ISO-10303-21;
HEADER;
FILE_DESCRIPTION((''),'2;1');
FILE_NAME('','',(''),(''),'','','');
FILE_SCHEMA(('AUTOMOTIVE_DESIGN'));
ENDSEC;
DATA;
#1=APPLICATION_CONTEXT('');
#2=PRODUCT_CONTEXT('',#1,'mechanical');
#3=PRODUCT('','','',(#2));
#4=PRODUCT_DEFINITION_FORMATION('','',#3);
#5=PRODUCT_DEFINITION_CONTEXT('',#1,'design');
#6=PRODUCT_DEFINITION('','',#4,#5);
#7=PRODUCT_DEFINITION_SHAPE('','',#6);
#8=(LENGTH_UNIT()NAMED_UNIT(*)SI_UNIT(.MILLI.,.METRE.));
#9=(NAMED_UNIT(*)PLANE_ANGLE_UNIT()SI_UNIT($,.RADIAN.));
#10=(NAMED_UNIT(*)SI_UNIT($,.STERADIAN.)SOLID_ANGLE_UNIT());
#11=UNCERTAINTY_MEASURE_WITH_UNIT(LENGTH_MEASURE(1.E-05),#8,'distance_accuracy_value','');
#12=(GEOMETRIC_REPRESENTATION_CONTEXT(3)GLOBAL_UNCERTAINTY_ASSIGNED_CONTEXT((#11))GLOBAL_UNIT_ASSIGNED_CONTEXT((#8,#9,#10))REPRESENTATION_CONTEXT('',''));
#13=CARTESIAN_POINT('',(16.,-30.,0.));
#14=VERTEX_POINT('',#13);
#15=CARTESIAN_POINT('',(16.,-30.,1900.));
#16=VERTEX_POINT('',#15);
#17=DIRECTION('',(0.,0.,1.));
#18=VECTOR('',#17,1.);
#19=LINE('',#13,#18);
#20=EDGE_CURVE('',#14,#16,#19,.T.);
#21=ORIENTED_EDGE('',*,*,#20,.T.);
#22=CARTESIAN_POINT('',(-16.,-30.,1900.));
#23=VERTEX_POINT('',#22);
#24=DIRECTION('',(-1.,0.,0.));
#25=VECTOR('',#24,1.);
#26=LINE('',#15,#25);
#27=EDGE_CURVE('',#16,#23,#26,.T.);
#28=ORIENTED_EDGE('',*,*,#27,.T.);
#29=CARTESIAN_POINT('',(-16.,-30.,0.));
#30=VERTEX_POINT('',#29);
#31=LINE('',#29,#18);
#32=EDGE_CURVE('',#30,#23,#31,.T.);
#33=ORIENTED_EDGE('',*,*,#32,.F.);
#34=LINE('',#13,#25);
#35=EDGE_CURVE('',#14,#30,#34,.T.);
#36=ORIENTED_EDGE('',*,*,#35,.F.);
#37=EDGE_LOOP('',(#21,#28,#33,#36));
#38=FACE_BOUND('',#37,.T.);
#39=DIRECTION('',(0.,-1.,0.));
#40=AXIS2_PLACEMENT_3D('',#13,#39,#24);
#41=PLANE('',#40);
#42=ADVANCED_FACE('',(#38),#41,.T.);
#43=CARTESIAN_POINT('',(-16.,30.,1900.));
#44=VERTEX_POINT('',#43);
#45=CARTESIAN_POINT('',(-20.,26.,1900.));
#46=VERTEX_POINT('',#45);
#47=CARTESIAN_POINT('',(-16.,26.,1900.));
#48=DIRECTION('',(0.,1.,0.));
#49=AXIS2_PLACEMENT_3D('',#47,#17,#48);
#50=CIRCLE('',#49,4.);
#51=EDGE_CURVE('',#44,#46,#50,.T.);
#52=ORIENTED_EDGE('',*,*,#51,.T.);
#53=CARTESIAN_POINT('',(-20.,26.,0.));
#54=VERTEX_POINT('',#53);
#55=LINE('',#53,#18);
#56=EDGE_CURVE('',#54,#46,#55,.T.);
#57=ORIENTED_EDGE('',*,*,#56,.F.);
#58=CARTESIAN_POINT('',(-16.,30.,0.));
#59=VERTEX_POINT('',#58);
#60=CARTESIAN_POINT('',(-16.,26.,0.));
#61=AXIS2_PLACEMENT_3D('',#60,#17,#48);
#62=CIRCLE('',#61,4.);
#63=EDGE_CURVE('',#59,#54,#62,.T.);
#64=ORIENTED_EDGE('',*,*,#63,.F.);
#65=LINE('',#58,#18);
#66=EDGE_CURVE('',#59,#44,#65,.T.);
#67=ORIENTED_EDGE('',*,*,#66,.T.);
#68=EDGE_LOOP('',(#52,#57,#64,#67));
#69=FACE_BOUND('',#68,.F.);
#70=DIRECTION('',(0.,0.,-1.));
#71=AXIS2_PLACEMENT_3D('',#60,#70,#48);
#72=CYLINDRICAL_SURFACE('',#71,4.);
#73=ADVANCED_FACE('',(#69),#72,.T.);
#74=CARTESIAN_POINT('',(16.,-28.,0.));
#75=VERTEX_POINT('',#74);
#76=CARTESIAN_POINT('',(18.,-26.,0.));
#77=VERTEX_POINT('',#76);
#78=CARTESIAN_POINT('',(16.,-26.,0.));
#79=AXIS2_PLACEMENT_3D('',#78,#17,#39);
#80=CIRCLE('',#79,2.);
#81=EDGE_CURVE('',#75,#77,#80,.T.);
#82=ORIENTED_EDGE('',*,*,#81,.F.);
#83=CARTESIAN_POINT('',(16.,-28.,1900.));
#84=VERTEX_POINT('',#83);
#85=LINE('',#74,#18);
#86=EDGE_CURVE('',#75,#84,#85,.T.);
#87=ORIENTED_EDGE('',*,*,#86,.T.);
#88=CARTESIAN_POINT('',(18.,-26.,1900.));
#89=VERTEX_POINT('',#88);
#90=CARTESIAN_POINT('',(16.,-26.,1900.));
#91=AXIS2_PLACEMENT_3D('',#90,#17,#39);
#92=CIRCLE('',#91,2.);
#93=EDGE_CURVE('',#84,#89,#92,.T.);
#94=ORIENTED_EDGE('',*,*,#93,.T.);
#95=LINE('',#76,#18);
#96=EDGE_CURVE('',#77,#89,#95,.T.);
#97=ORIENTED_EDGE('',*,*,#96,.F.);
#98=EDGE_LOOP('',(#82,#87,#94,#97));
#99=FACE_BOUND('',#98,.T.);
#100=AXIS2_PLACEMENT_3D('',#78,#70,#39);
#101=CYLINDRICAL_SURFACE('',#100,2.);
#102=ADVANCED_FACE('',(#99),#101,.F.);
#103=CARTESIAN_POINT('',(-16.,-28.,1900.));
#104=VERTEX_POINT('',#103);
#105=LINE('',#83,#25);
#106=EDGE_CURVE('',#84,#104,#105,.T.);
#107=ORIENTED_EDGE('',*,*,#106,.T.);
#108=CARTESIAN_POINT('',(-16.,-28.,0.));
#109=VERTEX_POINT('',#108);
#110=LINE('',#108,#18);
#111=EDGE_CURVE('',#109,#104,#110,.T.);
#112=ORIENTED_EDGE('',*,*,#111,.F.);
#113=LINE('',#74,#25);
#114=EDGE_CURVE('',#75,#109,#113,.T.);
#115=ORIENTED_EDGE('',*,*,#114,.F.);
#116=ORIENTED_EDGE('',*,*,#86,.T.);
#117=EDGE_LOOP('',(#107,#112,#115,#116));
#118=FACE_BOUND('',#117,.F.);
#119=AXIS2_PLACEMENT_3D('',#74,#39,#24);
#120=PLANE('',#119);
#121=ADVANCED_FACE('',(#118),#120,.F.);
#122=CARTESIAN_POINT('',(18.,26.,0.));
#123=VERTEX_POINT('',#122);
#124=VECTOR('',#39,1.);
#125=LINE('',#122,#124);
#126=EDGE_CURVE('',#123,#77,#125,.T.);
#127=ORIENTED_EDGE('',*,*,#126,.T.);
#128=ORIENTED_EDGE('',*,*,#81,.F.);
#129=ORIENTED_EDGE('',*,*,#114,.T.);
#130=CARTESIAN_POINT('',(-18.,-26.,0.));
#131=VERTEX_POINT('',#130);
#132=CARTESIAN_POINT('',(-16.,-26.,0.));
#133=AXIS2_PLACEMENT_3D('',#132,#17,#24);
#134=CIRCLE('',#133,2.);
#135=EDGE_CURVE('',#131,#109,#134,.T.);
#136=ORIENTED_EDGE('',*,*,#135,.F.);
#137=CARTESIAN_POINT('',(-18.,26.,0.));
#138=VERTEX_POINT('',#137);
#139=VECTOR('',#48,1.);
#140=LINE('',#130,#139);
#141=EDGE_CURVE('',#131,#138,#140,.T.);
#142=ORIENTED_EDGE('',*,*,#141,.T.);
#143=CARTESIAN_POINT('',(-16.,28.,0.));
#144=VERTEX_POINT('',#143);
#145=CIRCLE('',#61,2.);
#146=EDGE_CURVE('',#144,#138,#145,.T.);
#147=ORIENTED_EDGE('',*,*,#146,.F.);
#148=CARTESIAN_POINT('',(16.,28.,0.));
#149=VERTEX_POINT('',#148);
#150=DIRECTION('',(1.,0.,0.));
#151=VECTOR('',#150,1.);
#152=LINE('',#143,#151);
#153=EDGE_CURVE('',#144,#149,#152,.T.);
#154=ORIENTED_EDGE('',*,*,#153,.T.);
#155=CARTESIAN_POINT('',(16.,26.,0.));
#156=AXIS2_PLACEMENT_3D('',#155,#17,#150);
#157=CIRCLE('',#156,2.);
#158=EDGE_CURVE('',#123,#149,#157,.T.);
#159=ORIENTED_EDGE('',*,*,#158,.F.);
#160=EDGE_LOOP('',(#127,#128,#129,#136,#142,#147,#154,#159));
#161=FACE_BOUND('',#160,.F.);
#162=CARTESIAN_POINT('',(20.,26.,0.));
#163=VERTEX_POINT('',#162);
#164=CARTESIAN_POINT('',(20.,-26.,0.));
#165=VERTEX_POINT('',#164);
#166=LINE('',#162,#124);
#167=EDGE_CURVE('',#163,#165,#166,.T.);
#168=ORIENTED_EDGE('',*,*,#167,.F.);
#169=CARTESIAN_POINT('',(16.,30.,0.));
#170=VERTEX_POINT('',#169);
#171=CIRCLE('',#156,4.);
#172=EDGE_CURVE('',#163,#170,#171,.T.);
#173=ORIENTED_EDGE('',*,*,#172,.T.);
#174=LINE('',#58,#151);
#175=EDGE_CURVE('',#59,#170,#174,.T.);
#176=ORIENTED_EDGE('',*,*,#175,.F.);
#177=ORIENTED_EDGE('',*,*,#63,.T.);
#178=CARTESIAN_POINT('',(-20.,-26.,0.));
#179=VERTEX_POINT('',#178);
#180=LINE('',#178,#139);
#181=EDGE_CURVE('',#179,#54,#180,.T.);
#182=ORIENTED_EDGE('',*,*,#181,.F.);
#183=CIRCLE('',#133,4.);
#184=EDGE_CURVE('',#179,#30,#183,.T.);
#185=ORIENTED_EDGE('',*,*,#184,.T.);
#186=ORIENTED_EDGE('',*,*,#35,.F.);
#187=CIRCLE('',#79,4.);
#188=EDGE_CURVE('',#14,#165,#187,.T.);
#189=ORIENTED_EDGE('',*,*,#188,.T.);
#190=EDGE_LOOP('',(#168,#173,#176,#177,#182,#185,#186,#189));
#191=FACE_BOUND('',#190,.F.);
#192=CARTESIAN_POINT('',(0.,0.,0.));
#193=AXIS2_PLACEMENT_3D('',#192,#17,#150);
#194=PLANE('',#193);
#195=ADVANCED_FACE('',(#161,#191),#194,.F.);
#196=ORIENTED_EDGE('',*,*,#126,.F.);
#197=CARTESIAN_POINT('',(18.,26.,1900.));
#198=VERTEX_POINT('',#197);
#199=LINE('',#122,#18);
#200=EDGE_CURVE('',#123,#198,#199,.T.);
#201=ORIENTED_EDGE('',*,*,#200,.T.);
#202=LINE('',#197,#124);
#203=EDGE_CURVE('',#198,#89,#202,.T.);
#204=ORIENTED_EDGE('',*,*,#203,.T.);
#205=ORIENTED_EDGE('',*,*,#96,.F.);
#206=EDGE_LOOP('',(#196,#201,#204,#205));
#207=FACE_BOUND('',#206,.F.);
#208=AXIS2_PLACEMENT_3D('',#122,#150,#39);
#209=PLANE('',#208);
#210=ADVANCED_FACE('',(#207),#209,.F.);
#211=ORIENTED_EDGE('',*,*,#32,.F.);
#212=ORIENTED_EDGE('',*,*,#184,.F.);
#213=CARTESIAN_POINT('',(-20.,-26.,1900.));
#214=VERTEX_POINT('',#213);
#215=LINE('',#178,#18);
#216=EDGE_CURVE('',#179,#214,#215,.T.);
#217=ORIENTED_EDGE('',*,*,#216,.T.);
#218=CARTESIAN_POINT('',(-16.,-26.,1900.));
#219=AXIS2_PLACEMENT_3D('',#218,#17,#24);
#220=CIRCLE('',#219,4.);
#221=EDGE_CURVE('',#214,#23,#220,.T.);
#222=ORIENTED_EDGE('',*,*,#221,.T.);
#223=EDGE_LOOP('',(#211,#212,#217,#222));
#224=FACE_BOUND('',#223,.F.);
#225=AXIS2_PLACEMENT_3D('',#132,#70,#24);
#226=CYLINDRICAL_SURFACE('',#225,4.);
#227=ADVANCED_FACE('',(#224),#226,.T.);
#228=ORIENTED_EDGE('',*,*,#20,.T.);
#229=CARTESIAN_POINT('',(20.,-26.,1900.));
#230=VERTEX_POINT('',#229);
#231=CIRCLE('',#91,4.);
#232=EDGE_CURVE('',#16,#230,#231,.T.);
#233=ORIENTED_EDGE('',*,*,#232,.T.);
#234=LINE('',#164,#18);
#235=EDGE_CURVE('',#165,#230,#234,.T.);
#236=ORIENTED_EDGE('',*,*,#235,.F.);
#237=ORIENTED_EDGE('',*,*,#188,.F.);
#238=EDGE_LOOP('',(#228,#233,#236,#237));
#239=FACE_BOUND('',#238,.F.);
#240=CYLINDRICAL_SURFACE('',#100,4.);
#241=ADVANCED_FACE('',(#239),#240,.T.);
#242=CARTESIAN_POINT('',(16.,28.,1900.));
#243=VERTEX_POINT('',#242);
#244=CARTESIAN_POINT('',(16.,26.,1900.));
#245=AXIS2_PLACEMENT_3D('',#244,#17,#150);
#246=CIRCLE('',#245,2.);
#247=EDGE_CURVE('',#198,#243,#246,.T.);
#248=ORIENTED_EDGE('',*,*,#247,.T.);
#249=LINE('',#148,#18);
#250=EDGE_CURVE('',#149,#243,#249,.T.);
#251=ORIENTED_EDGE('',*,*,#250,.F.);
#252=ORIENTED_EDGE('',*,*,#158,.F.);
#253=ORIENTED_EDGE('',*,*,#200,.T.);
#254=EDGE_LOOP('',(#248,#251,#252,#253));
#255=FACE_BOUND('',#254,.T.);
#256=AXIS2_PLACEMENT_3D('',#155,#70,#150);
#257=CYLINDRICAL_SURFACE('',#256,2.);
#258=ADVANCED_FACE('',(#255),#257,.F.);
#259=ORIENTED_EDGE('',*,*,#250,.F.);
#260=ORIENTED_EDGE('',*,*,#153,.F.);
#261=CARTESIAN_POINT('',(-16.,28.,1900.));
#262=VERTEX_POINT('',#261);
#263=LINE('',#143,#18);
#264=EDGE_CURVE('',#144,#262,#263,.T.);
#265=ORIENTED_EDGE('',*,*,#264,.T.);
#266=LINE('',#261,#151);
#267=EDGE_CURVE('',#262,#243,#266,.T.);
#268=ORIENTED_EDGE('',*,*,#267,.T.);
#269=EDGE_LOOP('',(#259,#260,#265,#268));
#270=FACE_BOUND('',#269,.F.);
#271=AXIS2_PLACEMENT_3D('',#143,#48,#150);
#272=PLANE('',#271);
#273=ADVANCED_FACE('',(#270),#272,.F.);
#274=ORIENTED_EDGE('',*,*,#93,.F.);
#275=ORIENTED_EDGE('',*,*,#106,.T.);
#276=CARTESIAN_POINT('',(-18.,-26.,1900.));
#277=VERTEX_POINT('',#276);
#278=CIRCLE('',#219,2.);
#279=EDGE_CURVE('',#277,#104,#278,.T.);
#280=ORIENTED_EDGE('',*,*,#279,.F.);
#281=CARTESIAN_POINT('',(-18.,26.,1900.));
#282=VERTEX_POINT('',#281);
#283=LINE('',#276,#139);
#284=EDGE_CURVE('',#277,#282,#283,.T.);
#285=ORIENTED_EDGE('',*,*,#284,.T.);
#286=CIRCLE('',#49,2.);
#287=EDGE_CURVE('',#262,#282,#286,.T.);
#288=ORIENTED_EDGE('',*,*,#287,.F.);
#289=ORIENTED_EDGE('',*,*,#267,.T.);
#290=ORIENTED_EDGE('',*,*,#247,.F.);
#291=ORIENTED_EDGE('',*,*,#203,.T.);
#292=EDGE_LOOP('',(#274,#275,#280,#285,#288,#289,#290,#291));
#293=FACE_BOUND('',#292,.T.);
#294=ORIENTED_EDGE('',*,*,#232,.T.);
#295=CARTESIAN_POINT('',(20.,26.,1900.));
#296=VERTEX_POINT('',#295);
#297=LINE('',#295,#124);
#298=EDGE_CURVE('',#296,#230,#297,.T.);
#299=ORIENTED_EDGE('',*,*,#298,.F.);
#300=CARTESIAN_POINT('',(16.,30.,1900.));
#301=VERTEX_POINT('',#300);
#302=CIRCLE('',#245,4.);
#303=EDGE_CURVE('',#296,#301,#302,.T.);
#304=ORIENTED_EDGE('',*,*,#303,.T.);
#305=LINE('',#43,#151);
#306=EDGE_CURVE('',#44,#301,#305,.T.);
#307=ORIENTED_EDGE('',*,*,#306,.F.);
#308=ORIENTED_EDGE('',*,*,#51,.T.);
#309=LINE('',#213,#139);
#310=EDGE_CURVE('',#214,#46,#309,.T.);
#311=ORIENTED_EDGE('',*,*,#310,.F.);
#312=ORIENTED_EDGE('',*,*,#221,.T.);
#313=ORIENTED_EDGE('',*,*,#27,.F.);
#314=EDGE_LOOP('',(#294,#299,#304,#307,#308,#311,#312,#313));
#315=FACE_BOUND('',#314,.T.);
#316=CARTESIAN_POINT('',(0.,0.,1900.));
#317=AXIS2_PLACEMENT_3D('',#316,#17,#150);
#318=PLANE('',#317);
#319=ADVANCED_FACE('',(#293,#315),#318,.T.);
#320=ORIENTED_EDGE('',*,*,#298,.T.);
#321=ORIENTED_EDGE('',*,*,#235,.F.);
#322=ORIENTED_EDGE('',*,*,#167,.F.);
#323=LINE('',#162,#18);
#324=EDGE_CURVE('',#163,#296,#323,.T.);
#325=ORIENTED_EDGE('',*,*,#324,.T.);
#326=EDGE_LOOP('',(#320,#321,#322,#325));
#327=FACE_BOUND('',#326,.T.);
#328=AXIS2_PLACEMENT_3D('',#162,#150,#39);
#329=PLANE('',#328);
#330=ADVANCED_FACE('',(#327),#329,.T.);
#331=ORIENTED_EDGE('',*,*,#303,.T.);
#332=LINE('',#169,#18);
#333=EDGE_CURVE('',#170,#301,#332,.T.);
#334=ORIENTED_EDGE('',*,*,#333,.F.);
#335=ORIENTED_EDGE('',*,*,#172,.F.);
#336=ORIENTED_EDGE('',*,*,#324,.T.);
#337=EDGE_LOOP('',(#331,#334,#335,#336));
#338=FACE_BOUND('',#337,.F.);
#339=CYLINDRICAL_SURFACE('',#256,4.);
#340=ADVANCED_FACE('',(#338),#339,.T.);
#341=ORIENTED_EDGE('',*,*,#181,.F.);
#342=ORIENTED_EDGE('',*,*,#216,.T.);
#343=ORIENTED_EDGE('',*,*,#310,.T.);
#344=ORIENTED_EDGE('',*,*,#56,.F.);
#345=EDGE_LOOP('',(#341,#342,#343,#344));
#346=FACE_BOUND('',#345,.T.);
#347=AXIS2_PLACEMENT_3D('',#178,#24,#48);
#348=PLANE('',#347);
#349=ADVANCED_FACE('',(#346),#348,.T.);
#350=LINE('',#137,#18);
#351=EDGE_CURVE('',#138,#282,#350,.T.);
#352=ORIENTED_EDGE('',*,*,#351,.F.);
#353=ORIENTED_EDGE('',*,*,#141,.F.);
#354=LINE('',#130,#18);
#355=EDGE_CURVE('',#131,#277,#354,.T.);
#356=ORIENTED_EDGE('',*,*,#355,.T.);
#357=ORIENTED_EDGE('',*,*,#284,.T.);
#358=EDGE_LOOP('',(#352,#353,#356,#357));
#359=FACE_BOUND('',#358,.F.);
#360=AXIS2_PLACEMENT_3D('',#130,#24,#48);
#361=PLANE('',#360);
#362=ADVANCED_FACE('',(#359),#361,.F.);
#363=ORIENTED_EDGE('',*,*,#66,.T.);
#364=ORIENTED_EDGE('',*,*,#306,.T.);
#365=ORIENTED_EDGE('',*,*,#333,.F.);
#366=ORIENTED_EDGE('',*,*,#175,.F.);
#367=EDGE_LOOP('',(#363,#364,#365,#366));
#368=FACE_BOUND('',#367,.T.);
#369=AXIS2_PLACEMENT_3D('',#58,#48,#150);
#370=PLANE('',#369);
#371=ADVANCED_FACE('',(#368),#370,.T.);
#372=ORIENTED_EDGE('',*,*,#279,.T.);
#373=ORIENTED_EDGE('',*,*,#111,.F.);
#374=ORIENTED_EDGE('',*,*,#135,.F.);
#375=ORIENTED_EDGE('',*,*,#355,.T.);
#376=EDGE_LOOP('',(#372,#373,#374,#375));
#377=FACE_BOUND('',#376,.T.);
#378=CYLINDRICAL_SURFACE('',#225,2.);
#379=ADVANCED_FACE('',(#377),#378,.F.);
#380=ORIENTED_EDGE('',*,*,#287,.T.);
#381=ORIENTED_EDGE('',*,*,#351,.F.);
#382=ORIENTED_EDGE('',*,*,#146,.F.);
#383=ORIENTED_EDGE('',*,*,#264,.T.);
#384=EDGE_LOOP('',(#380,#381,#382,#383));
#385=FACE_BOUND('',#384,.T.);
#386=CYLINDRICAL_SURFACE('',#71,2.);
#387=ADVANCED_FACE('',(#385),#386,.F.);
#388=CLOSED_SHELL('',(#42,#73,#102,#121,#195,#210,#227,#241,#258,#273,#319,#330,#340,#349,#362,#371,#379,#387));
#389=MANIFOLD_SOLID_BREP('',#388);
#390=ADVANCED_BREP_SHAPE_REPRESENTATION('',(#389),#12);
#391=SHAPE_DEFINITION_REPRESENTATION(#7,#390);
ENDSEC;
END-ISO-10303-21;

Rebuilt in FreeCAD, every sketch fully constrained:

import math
import FreeCAD as App
import Part
import Sketcher
from FreeCAD import Vector
Q = App.Units.Quantity

doc = App.newDocument("Part")
body = doc.addObject("PartDesign::Body", "Body")

# Sketch on XY plane
sketch1 = body.newObject("Sketcher::SketchObject", "Sketch")
sketch1.AttachmentSupport = (doc.getObject("XY_Plane"), [""])
sketch1.MapMode = "FlatFace"
sketch1.addGeometry(Part.LineSegment(Vector(-20, 26, 0), Vector(-20, -26, 0)), False)
sketch1.addGeometry(Part.ArcOfCircle(Part.Circle(Vector(-16, -26, 0), Vector(0, 0, 1), 4), math.radians(180), math.radians(270)), False)
sketch1.addGeometry(Part.LineSegment(Vector(-16, -30, 0), Vector(16, -30, 0)), False)
sketch1.addGeometry(Part.ArcOfCircle(Part.Circle(Vector(16, -26, 0), Vector(0, 0, 1), 4), math.radians(-90), math.radians(0)), False)
sketch1.addGeometry(Part.LineSegment(Vector(20, -26, 0), Vector(20, 26, 0)), False)
sketch1.addGeometry(Part.ArcOfCircle(Part.Circle(Vector(16, 26, 0), Vector(0, 0, 1), 4), math.radians(0), math.radians(90)), False)
sketch1.addGeometry(Part.LineSegment(Vector(16, 30, 0), Vector(-16, 30, 0)), False)
sketch1.addGeometry(Part.ArcOfCircle(Part.Circle(Vector(-16, 26, 0), Vector(0, 0, 1), 4), math.radians(90), math.radians(180)), False)
sketch1.addGeometry(Part.ArcOfCircle(Part.Circle(Vector(-16, 26, 0), Vector(0, 0, 1), 2), math.radians(90), math.radians(180)), False)
sketch1.addGeometry(Part.LineSegment(Vector(-16, 28, 0), Vector(16, 28, 0)), False)
sketch1.addGeometry(Part.ArcOfCircle(Part.Circle(Vector(16, 26, 0), Vector(0, 0, 1), 2), math.radians(0), math.radians(90)), False)
sketch1.addGeometry(Part.LineSegment(Vector(18, 26, 0), Vector(18, -26, 0)), False)
sketch1.addGeometry(Part.ArcOfCircle(Part.Circle(Vector(16, -26, 0), Vector(0, 0, 1), 2), math.radians(-90), math.radians(0)), False)
sketch1.addGeometry(Part.LineSegment(Vector(16, -28, 0), Vector(-16, -28, 0)), False)
sketch1.addGeometry(Part.ArcOfCircle(Part.Circle(Vector(-16, -26, 0), Vector(0, 0, 1), 2), math.radians(180), math.radians(270)), False)
sketch1.addGeometry(Part.LineSegment(Vector(-18, -26, 0), Vector(-18, 26, 0)), False)
sketch1.addConstraint(Sketcher.Constraint("Tangent", 0, 2, 1, 1))
sketch1.addConstraint(Sketcher.Constraint("Tangent", 1, 2, 2, 1))
sketch1.addConstraint(Sketcher.Constraint("Tangent", 2, 2, 3, 1))
sketch1.addConstraint(Sketcher.Constraint("Tangent", 3, 2, 4, 1))
sketch1.addConstraint(Sketcher.Constraint("Tangent", 4, 2, 5, 1))
sketch1.addConstraint(Sketcher.Constraint("Tangent", 5, 2, 6, 1))
sketch1.addConstraint(Sketcher.Constraint("Tangent", 6, 2, 7, 1))
sketch1.addConstraint(Sketcher.Constraint("Tangent", 7, 2, 0, 1))
sketch1.addConstraint(Sketcher.Constraint("Tangent", 8, 1, 9, 1))
sketch1.addConstraint(Sketcher.Constraint("Tangent", 9, 2, 10, 2))
sketch1.addConstraint(Sketcher.Constraint("Tangent", 10, 1, 11, 1))
sketch1.addConstraint(Sketcher.Constraint("Tangent", 11, 2, 12, 2))
sketch1.addConstraint(Sketcher.Constraint("Tangent", 12, 1, 13, 1))
sketch1.addConstraint(Sketcher.Constraint("Tangent", 13, 2, 14, 2))
sketch1.addConstraint(Sketcher.Constraint("Tangent", 14, 1, 15, 1))
sketch1.addConstraint(Sketcher.Constraint("Tangent", 15, 2, 8, 2))
sketch1.addConstraint(Sketcher.Constraint("Vertical", 0))
sketch1.addConstraint(Sketcher.Constraint("Horizontal", 2))
sketch1.addConstraint(Sketcher.Constraint("Vertical", 4))
sketch1.addConstraint(Sketcher.Constraint("Horizontal", 6))
sketch1.addConstraint(Sketcher.Constraint("Horizontal", 9))
sketch1.addConstraint(Sketcher.Constraint("Vertical", 11))
sketch1.addConstraint(Sketcher.Constraint("Horizontal", 13))
sketch1.addConstraint(Sketcher.Constraint("Vertical", 15))
sketch1.addConstraint(Sketcher.Constraint("Coincident", 8, 3, 7, 3))
sketch1.addConstraint(Sketcher.Constraint("Coincident", 10, 3, 5, 3))
sketch1.addConstraint(Sketcher.Constraint("Coincident", 12, 3, 3, 3))
sketch1.addConstraint(Sketcher.Constraint("Equal", 1, 3))
sketch1.addConstraint(Sketcher.Constraint("Equal", 3, 5))
sketch1.addConstraint(Sketcher.Constraint("Equal", 5, 7))
sketch1.addConstraint(Sketcher.Constraint("Equal", 12, 14))
sketch1.addConstraint(Sketcher.Constraint("Symmetric", 1, 3, 5, 3, -1, 1))
sketch1.addConstraint(Sketcher.Constraint("Radius", 1, Q("4 mm")))
sketch1.addConstraint(Sketcher.Constraint("Radius", 8, Q("2 mm")))
sketch1.addConstraint(Sketcher.Constraint("DistanceX", 0, 2, -1, 1, Q("20 mm")))
sketch1.addConstraint(Sketcher.Constraint("DistanceY", 1, 2, -1, 1, Q("30 mm")))
pad1 = body.newObject("PartDesign::Pad", "Pad")
pad1.Profile = sketch1
pad1.Length = 1900

doc.recompute()
